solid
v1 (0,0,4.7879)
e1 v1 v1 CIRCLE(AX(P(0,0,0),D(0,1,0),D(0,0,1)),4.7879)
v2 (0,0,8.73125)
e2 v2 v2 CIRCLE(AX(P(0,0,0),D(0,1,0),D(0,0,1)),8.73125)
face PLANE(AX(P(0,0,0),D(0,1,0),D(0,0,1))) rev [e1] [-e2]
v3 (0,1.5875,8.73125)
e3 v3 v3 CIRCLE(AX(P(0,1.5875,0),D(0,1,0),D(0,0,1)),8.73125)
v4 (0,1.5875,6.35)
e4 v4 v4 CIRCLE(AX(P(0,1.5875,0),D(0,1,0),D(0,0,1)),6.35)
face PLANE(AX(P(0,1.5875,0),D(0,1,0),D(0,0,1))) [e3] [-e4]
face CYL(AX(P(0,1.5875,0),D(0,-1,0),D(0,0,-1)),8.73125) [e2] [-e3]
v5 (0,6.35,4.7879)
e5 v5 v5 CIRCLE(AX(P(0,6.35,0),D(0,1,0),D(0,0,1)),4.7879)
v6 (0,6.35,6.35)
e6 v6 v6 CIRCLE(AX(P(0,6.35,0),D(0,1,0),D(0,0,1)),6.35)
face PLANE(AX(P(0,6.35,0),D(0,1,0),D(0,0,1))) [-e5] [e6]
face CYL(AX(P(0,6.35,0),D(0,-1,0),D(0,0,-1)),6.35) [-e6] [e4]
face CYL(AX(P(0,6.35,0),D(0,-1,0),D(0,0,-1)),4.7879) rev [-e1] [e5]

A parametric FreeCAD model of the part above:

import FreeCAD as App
import Part
import Sketcher
from FreeCAD import Vector
Q = App.Units.Quantity

doc = App.newDocument("Part")
body = doc.addObject("PartDesign::Body", "Body")

# Sketch on XZ plane
sketch1 = doc.addObject("Sketcher::SketchObject", "Sketch")
body.addObject(sketch1)
sketch1.AttachmentSupport = (doc.XZ_Plane, [""])
sketch1.MapMode = "FlatFace"
sketch1.addGeometry([
    Part.Circle(Vector(0, 0, 0), Vector(0, 0, 1), 6.3),
    Part.Circle(Vector(0, 0, 0), Vector(0, 0, 1), 4.8),
], False)
sketch1.addConstraint([
    Sketcher.Constraint("Coincident", 0, 3, -1, 1),
    Sketcher.Constraint("Coincident", 1, 3, -1, 1),
    Sketcher.Constraint("Diameter", 0, Q("0.5 in")),
    Sketcher.Constraint("Diameter", 1, Q("0.377 in")),
])
pad1 = doc.addObject("PartDesign::Pad", "Pad")
body.addObject(pad1)
pad1.Profile = sketch1
pad1.Length = Q("0.25 in")
pad1.Reversed = True

# Sketch on XZ plane
sketch2 = doc.addObject("Sketcher::SketchObject", "Sketch001")
body.addObject(sketch2)
sketch2.AttachmentSupport = (doc.XZ_Plane, [""])
sketch2.MapMode = "FlatFace"
sketch2.addGeometry([
    Part.Circle(Vector(0, 0, 0), Vector(0, 0, 1), 9),
    Part.Circle(Vector(0, 0, 0), Vector(0, 0, 1), 6),
], False)
sketch2.addConstraint([
    Sketcher.Constraint("Coincident", 0, 3, -1, 1),
    Sketcher.Constraint("Coincident", 1, 3, -1, 1),
    Sketcher.Constraint("Diameter", 1, Q("0.5 in")),
    Sketcher.Constraint("Diameter", 0, Q("0.6875 in")),
])
pad2 = doc.addObject("PartDesign::Pad", "Pad001")
body.addObject(pad2)
pad2.Profile = sketch2
pad2.Length = Q("0.0625 in")
pad2.Reversed = True

doc.recompute()
